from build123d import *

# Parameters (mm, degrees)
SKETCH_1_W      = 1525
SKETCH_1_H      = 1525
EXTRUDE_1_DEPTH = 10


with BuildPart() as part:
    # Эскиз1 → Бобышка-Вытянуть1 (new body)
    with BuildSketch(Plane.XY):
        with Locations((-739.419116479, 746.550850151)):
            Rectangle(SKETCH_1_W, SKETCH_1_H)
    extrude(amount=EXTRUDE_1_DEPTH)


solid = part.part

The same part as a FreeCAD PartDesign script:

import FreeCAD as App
import Part
import Sketcher
from FreeCAD import Vector
Q = App.Units.Quantity


def add_polygon(sketch, points):
    """Adds a closed chain of lines whose ends are joined by coincident constraints."""
    first, n = sketch.GeometryCount, len(points)
    for a, b in zip(points, points[1:] + points[:1]):
        sketch.addGeometry(Part.LineSegment(App.Vector(*a, 0), App.Vector(*b, 0)), False)
    for i in range(n):
        sketch.addConstraint(Sketcher.Constraint("Coincident", first + i, 2, first + (i + 1) % n, 1))

doc = App.newDocument("Part")
body = doc.addObject("PartDesign::Body", "Body")

# Sketch on XY plane
sketch1 = doc.addObject("Sketcher::SketchObject", "Sketch")
body.addObject(sketch1)
sketch1.AttachmentSupport = (doc.XY_Plane, [""])
sketch1.MapMode = "FlatFace"
add_polygon(sketch1, [(-1502, 1509), (-1502, -16), (23, -16), (23, 1509)])  # lines 0-3
sketch1.addConstraint([
    Sketcher.Constraint("Vertical", 0),
    Sketcher.Constraint("Horizontal", 1),
    Sketcher.Constraint("Vertical", 2),
    Sketcher.Constraint("Horizontal", 3),
    Sketcher.Constraint("Equal", 3, 0),
    Sketcher.Constraint("DistanceX", 1, 1, 1, 2, Q("1525 mm")),
    Sketcher.Constraint("DistanceY", 0, 2, -1, 1, Q("15.94915 mm")),
    Sketcher.Constraint("DistanceX", 0, 2, -1, 1, Q("1501.919116 mm")),
])
pad1 = doc.addObject("PartDesign::Pad", "Pad")
body.addObject(pad1)
pad1.Profile = sketch1
pad1.Length = 10

doc.recompute()
